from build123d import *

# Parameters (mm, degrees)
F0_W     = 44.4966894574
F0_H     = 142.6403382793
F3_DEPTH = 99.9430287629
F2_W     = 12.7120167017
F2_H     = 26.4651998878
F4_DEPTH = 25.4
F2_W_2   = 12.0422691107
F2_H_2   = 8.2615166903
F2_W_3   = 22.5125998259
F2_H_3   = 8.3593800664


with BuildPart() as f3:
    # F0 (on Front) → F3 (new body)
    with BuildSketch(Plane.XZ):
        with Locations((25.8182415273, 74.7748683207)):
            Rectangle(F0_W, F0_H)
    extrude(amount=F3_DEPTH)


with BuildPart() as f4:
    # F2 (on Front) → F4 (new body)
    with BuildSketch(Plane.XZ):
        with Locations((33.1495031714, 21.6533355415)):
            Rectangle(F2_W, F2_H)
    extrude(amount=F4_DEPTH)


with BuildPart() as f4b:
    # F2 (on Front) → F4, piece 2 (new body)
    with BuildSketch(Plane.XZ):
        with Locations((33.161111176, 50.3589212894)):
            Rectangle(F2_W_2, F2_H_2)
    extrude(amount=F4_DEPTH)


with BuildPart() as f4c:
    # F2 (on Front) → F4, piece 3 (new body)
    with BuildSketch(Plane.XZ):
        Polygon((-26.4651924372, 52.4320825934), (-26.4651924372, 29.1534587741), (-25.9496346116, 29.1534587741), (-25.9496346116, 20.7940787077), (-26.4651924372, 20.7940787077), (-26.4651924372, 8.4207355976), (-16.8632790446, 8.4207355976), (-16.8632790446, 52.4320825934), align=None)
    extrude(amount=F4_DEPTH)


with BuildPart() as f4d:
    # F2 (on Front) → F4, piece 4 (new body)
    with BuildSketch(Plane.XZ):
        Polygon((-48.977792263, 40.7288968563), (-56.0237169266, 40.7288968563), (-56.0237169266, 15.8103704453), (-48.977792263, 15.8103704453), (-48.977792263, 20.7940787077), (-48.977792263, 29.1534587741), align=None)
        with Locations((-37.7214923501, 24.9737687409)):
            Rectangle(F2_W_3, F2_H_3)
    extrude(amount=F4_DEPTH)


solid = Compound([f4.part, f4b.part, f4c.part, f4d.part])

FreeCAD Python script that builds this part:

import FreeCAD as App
import Part
import Sketcher
from FreeCAD import Vector
Q = App.Units.Quantity


def add_polygon(sketch, points):
    """Adds a closed chain of lines whose ends are joined by coincident constraints."""
    first, n = sketch.GeometryCount, len(points)
    for a, b in zip(points, points[1:] + points[:1]):
        sketch.addGeometry(Part.LineSegment(App.Vector(*a, 0), App.Vector(*b, 0)), False)
    for i in range(n):
        sketch.addConstraint(Sketcher.Constraint("Coincident", first + i, 2, first + (i + 1) % n, 1))

doc = App.newDocument("Part")
body = doc.addObject("PartDesign::Body", "Body")

sketch1 = body.newObject("Sketcher::SketchObject", "Sketch")
sketch1.AttachmentSupport = (doc.getObject("XZ_Plane"), [""])
sketch1.MapMode = "FlatFace"
add_polygon(sketch1, [(4, 146), (4, 3), (48, 3), (48, 146)])
sketch1.addConstraint(Sketcher.Constraint("Vertical", 0))
sketch1.addConstraint(Sketcher.Constraint("Horizontal", 1))
sketch1.addConstraint(Sketcher.Constraint("Vertical", 2))
sketch1.addConstraint(Sketcher.Constraint("Horizontal", 3))
sketch1.addConstraint(Sketcher.Constraint("DistanceX", 1, 1, 1, 2, Q("44.496689 mm")))
sketch1.addConstraint(Sketcher.Constraint("DistanceY", 0, 2, 0, 1, Q("142.640338 mm")))
sketch1.addConstraint(Sketcher.Constraint("DistanceY", -1, 1, 0, 2, Q("3.454699 mm")))
sketch1.addConstraint(Sketcher.Constraint("DistanceX", -1, 1, 0, 2, Q("3.569897 mm")))
pad1 = body.newObject("PartDesign::Pad", "Pad")
pad1.Profile = sketch1
pad1.Length = 99.943029
body2 = doc.addObject("PartDesign::Body", "Body001")

sketch2 = body2.newObject("Sketcher::SketchObject", "Sketch001")
sketch2.AttachmentSupport = (doc.getObject("XZ_Plane001"), [""])
sketch2.MapMode = "FlatFace"
add_polygon(sketch2, [(27, 35), (27, 8), (40, 8), (40, 35)])
sketch2.addConstraint(Sketcher.Constraint("Vertical", 0))
sketch2.addConstraint(Sketcher.Constraint("Horizontal", 1))
sketch2.addConstraint(Sketcher.Constraint("Vertical", 2))
sketch2.addConstraint(Sketcher.Constraint("Horizontal", 3))
sketch2.addConstraint(Sketcher.Constraint("DistanceY", 0, 2, 0, 1, Q("26.4652 mm")))
sketch2.addConstraint(Sketcher.Constraint("DistanceX", 1, 1, 1, 2, Q("12.712017 mm")))
sketch2.addConstraint(Sketcher.Constraint("DistanceX", -1, 1, 1, 2, Q("39.505512 mm")))
sketch2.addConstraint(Sketcher.Constraint("DistanceY", -1, 1, 0, 2, Q("8.420736 mm")))
pad2 = body2.newObject("PartDesign::Pad", "Pad001")
pad2.Profile = sketch2
pad2.Length = Q("1 in")
body3 = doc.addObject("PartDesign::Body", "Body002")

sketch3 = body3.newObject("Sketcher::SketchObject", "Sketch002")
sketch3.AttachmentSupport = (doc.getObject("XZ_Plane002"), [""])
sketch3.MapMode = "FlatFace"
add_polygon(sketch3, [(27, 54), (27, 46), (39, 46), (39, 54)])
sketch3.addConstraint(Sketcher.Constraint("Vertical", 0))
sketch3.addConstraint(Sketcher.Constraint("Horizontal", 1))
sketch3.addConstraint(Sketcher.Constraint("Vertical", 2))
sketch3.addConstraint(Sketcher.Constraint("Horizontal", 3))
sketch3.addConstraint(Sketcher.Constraint("DistanceX", 1, 1, 1, 2, Q("12.042269 mm")))
sketch3.addConstraint(Sketcher.Constraint("DistanceY", 0, 2, 0, 1, Q("8.261517 mm")))
sketch3.addConstraint(Sketcher.Constraint("DistanceY", -1, 1, 2, 2, Q("54.48968 mm")))
sketch3.addConstraint(Sketcher.Constraint("DistanceX", -1, 1, 0, 2, Q("27.139977 mm")))
pad3 = body3.newObject("PartDesign::Pad", "Pad002")
pad3.Profile = sketch3
pad3.Length = Q("1 in")
body4 = doc.addObject("PartDesign::Body", "Body003")

sketch4 = body4.newObject("Sketcher::SketchObject", "Sketch003")
sketch4.AttachmentSupport = (doc.getObject("XZ_Plane003"), [""])
sketch4.MapMode = "FlatFace"
add_polygon(sketch4, [(-26.5, 52.4), (-26.5, 29.2), (-25.9, 29.2), (-25.9, 20.8), (-26.5, 20.8), (-26.5, 8.4), (-16.9, 8.4), (-16.9, 52.4)])
sketch4.addConstraint(Sketcher.Constraint("Vertical", 0))
sketch4.addConstraint(Sketcher.Constraint("Horizontal", 1))
sketch4.addConstraint(Sketcher.Constraint("Vertical", 2))
sketch4.addConstraint(Sketcher.Constraint("Horizontal", 3))
sketch4.addConstraint(Sketcher.Constraint("Vertical", 4))
sketch4.addConstraint(Sketcher.Constraint("Horizontal", 5))
sketch4.addConstraint(Sketcher.Constraint("Vertical", 6))
sketch4.addConstraint(Sketcher.Constraint("Horizontal", 7))
sketch4.addConstraint(Sketcher.Constraint("Vertical", 0, 2, 3, 2))
sketch4.addConstraint(Sketcher.Constraint("DistanceY", 2, 2, 2, 1, Q("8.35938 mm")))
sketch4.addConstraint(Sketcher.Constraint("DistanceX", 1, 1, 1, 2, Q("0.515558 mm")))
sketch4.addConstraint(Sketcher.Constraint("DistanceX", 5, 1, 5, 2, Q("9.601913 mm")))
sketch4.addConstraint(Sketcher.Constraint("DistanceY", 0, 2, 0, 1, Q("23.278624 mm")))
sketch4.addConstraint(Sketcher.Constraint("DistanceY", 4, 2, 4, 1, Q("12.373343 mm")))
sketch4.addConstraint(Sketcher.Constraint("DistanceY", -1, 1, 0, 2, Q("29.153459 mm")))
sketch4.addConstraint(Sketcher.Constraint("DistanceX", 5, 2, -1, 1, Q("16.863279 mm")))
pad4 = body4.newObject("PartDesign::Pad", "Pad003")
pad4.Profile = sketch4
pad4.Length = Q("1 in")
body5 = doc.addObject("PartDesign::Body", "Body004")

sketch5 = body5.newObject("Sketcher::SketchObject", "Sketch004")
sketch5.AttachmentSupport = (doc.getObject("XZ_Plane004"), [""])
sketch5.MapMode = "FlatFace"
add_polygon(sketch5, [(-49, 40.7), (-56, 40.7), (-56, 15.8), (-49, 15.8), (-49, 20.8), (-26.5, 20.8), (-26.5, 29.2), (-49, 29.2)])
sketch5.addConstraint(Sketcher.Constraint("Horizontal", 0))
sketch5.addConstraint(Sketcher.Constraint("Vertical", 1))
sketch5.addConstraint(Sketcher.Constraint("Horizontal", 2))
sketch5.addConstraint(Sketcher.Constraint("Vertical", 3))
sketch5.addConstraint(Sketcher.Constraint("Horizontal", 4))
sketch5.addConstraint(Sketcher.Constraint("Vertical", 5))
sketch5.addConstraint(Sketcher.Constraint("Horizontal", 6))
sketch5.addConstraint(Sketcher.Constraint("Vertical", 7))
sketch5.addConstraint(Sketcher.Constraint("Vertical", 3, 2, 6, 2))
sketch5.addConstraint(Sketcher.Constraint("DistanceX", 4, 1, 4, 2, Q("22.5126 mm")))
sketch5.addConstraint(Sketcher.Constraint("DistanceY", -1, 1, 0, 2, Q("1.6034999 in")))
sketch5.addConstraint(Sketcher.Constraint("DistanceY", 3, 1, 3, 2, Q("4.983708 mm")))
sketch5.addConstraint(Sketcher.Constraint("DistanceY", 5, 1, 5, 2, Q("8.35938 mm")))
sketch5.addConstraint(Sketcher.Constraint("DistanceY", 7, 1, 7, 2, Q("11.575438 mm")))
sketch5.addConstraint(Sketcher.Constraint("DistanceX", 0, 2, 0, 1, Q("7.045925 mm")))
sketch5.addConstraint(Sketcher.Constraint("DistanceX", 0, 2, -1, 1, Q("56.023717 mm")))
pad5 = body5.newObject("PartDesign::Pad", "Pad004")
pad5.Profile = sketch5
pad5.Length = Q("1 in")
body.Visibility = False

doc.recompute()
